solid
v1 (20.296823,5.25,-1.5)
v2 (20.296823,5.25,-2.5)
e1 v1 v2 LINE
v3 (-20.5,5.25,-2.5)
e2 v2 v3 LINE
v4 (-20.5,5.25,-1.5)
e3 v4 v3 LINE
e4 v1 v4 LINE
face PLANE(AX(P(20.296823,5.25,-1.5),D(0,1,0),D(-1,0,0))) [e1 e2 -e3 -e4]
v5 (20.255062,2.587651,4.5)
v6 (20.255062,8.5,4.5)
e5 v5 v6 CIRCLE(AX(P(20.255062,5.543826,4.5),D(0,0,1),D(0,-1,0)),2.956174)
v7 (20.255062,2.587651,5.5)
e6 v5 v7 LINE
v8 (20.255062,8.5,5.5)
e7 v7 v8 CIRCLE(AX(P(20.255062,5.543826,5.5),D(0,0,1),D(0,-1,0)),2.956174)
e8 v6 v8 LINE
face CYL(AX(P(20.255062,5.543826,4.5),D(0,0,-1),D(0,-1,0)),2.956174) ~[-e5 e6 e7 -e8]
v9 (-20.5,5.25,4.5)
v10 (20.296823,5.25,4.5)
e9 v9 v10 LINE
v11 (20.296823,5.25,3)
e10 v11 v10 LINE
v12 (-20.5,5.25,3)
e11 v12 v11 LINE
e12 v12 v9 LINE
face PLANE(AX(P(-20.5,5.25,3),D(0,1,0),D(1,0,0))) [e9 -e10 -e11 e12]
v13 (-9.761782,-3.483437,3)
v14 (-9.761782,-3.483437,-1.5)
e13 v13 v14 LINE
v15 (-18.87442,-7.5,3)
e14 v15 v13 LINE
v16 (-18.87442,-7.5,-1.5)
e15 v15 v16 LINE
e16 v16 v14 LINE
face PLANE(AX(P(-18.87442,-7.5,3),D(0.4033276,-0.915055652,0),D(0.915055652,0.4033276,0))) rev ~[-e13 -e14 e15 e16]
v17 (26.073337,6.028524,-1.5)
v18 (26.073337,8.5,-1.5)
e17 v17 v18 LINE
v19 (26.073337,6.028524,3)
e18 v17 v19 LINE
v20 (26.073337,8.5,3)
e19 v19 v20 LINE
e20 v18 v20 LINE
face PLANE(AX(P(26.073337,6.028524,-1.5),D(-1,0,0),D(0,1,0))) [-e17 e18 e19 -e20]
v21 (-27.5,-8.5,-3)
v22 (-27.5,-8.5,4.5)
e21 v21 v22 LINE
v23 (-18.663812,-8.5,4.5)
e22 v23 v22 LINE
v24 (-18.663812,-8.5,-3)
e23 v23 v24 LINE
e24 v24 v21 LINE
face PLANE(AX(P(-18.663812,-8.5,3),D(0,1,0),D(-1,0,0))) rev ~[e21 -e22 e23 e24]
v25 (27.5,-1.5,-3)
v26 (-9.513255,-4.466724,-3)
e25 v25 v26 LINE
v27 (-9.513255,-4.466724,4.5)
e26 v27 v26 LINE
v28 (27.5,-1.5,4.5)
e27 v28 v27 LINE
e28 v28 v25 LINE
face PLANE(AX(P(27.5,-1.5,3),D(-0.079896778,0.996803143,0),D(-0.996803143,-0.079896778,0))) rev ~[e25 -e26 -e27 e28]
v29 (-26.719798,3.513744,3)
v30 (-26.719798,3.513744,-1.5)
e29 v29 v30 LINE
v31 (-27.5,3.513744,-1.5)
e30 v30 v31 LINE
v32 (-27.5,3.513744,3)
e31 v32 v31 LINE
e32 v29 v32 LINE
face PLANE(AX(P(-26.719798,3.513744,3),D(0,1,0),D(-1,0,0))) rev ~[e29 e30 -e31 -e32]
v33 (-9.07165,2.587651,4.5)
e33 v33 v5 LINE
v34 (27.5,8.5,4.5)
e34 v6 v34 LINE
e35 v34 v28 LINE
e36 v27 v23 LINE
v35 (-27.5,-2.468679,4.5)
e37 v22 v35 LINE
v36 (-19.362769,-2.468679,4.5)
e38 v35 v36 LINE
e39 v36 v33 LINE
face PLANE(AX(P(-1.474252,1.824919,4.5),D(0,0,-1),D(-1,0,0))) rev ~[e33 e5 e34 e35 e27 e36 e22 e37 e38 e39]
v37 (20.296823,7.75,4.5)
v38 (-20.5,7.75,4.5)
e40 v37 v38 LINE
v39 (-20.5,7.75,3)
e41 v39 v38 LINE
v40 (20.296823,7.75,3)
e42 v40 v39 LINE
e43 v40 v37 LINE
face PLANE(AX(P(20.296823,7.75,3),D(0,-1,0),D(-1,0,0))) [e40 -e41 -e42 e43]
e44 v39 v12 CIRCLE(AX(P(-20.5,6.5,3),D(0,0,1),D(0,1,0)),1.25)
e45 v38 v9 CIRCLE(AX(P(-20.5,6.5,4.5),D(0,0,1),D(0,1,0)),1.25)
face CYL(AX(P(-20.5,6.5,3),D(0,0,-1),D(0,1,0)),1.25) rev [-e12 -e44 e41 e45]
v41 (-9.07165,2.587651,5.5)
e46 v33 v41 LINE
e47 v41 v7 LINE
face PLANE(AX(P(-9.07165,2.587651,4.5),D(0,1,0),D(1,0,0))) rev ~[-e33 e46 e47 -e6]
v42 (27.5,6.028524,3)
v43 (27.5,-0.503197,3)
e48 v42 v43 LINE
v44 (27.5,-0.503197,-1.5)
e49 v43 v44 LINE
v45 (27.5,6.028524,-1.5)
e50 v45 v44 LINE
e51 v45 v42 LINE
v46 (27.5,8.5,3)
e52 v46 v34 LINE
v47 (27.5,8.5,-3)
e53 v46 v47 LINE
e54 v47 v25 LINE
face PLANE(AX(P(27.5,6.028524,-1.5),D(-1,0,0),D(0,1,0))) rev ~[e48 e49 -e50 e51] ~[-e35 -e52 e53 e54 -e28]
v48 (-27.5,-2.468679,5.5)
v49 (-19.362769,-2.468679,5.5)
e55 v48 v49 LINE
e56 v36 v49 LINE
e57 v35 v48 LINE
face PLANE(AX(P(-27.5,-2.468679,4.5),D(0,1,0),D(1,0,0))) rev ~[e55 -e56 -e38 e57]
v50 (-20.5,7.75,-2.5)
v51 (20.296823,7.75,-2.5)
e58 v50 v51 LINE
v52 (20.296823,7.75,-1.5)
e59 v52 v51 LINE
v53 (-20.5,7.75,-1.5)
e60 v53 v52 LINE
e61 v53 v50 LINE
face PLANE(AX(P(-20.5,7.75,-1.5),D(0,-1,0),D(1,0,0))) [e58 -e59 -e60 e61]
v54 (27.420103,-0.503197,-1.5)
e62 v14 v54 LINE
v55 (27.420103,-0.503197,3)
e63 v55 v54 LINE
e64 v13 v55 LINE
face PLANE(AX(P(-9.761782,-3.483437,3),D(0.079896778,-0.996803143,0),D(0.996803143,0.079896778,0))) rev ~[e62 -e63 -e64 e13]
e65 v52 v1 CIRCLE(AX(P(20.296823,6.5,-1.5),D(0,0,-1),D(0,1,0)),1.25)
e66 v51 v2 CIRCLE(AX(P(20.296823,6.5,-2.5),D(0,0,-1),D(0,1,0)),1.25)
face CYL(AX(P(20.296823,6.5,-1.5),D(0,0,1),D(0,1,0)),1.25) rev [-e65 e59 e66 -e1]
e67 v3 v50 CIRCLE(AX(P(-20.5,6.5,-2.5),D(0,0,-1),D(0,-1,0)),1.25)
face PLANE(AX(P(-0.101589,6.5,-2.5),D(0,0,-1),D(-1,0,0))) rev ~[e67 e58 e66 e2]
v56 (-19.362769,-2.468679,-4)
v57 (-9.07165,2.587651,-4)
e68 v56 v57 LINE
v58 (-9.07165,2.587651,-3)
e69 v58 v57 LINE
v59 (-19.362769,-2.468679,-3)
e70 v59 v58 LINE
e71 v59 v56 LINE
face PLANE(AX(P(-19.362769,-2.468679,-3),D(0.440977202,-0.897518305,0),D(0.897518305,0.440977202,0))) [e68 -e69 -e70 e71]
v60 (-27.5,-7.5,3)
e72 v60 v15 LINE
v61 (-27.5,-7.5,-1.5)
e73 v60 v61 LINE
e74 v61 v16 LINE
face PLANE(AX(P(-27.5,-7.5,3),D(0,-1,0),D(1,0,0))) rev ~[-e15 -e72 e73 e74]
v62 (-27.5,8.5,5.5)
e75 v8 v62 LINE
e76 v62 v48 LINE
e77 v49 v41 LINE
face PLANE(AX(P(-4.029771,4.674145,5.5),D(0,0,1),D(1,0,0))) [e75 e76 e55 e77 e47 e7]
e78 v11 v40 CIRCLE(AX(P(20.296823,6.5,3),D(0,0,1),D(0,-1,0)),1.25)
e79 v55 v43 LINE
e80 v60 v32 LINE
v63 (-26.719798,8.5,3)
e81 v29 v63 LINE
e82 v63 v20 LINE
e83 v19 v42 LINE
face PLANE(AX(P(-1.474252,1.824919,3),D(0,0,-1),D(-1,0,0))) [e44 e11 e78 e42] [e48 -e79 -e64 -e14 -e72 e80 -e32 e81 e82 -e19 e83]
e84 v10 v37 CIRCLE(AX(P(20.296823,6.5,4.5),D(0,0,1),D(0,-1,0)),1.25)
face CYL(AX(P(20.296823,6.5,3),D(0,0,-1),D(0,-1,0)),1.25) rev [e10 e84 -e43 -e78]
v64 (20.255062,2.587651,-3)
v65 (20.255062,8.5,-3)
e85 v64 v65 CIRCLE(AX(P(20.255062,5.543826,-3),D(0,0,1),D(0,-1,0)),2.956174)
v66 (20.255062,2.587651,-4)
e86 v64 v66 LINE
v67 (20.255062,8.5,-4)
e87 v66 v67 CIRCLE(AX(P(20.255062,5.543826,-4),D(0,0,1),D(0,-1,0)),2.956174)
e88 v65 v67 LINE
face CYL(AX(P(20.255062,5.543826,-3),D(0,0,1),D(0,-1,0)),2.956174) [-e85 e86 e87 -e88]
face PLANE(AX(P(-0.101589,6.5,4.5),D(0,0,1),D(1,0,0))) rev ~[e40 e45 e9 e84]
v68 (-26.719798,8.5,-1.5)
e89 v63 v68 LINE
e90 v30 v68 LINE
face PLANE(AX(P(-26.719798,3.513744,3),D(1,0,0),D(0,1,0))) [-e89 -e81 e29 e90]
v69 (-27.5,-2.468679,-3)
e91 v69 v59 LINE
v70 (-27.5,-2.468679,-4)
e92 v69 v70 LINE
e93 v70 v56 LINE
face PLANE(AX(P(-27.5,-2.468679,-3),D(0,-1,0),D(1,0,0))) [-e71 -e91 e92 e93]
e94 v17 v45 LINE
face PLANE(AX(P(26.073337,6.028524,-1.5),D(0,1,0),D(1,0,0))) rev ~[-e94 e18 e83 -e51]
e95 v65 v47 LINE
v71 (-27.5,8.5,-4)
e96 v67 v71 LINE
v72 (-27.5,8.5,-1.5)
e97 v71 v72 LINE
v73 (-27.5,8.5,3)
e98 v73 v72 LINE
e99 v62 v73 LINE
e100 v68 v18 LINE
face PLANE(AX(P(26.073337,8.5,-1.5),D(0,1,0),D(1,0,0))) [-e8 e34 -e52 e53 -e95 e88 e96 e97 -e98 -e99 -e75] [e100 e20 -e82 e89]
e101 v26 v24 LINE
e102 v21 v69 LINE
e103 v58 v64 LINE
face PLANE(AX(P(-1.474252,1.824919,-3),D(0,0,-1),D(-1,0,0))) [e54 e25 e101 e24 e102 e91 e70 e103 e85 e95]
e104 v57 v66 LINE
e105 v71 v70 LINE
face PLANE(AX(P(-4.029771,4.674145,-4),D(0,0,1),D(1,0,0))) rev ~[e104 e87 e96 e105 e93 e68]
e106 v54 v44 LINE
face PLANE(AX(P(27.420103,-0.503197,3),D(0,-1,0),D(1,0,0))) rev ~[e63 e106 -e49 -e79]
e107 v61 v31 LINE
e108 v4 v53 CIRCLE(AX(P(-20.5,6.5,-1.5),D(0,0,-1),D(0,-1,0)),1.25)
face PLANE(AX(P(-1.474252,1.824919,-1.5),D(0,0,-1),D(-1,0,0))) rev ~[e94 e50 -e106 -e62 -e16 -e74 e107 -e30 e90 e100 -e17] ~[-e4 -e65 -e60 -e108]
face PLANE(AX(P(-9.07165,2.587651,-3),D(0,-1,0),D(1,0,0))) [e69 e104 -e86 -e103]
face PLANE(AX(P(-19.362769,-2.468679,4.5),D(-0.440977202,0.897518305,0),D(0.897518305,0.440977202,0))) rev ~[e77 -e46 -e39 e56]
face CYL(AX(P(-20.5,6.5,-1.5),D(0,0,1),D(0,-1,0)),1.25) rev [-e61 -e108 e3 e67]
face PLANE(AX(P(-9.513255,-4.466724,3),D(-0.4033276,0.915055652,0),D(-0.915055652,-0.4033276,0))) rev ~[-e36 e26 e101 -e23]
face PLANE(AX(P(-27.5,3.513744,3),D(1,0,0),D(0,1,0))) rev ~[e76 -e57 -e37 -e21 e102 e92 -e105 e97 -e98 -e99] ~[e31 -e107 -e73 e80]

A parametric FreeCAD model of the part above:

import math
import FreeCAD as App
import Part
import Sketcher


def add_polygon(sketch, points):
    """Adds a closed chain of lines whose ends are joined by coincident constraints."""
    first, n = sketch.GeometryCount, len(points)
    for a, b in zip(points, points[1:] + points[:1]):
        sketch.addGeometry(Part.LineSegment(App.Vector(*a, 0), App.Vector(*b, 0)), False)
    for i in range(n):
        sketch.addConstraint(Sketcher.Constraint("Coincident", first + i, 2, first + (i + 1) % n, 1))

doc = App.newDocument("Part")
params = doc.addObject("Spreadsheet::Sheet", "Params")
for row, (alias, value) in enumerate([
    ("sketch1_width", "55 mm"),
    ("sketch1_height", "10 mm"),
    ("sketch1_height2", "17 mm"),
    ("sketch1_length", "10 mm"),
    ("pad1_length", "1.5 mm"),
    ("pad2_length", "1 mm"),
    ("sketch3_radius", "1.25 mm"),
    ("pocket1_length", "1.5 mm"),
    ("sketch4_width", "55 mm"),
    ("sketch4_height", "10 mm"),
    ("sketch4_height2", "17 mm"),
    ("sketch4_length", "10 mm"),
    ("pad3_length", "1.5 mm"),
    ("pad4_length", "1 mm"),
    ("sketch6_height", "1 mm"),
    ("sketch6_length", "10 mm"),
    ("pad5_length", "4.5 mm"),
    ("sketch7_radius", "1.25 mm"),
    ("pocket2_length", "1 mm"),
    ("pad6_length", "4.5 mm"),
    ("pad7_length", "4.5 mm"),
], start=1):
    params.set(f"A{row}", alias)
    params.set(f"B{row}", "=" + value)
    params.setAlias(f"B{row}", alias)

body = doc.addObject("PartDesign::Body", "Body")

# Sketch on XY plane
sketch1 = doc.addObject("Sketcher::SketchObject", "Sketch")
body.addObject(sketch1)
sketch1.AttachmentSupport = (doc.XY_Plane, [""])
sketch1.MapMode = "FlatFace"
sketch1.AttachmentOffset = App.Placement(App.Vector(0, 0, 3), App.Rotation())
add_polygon(sketch1, [(-19, -8), (-10, -4), (28, -2), (28, 8), (-28, 8), (-28, -8)])  # lines 0-5
sketch1.addConstraint([
    Sketcher.Constraint("Vertical", 2),
    Sketcher.Constraint("Horizontal", 3),
    Sketcher.Constraint("Vertical", 4),
    Sketcher.Constraint("Horizontal", 5),
    Sketcher.Constraint("Symmetric", 2, 2, 4, 2, -1, 1),
    Sketcher.Constraint("DistanceX", 3, 2, 3, 1, 55.0),
    Sketcher.Constraint("DistanceY", 2, 1, 2, 2, 10.0),
    Sketcher.Constraint("DistanceY", 4, 2, 4, 1, 17.0),
    Sketcher.Constraint("Distance", 0, 10.0),
    Sketcher.Constraint("DistanceX", 5, 1, 5, 2, 8.836188),
    Sketcher.Constraint("Distance", 1, 37.131961),
])
sketch1.setExpression("Constraints[11]", "Params.sketch1_width")
sketch1.setExpression("Constraints[12]", "Params.sketch1_height")
sketch1.setExpression("Constraints[13]", "Params.sketch1_height2")
sketch1.setExpression("Constraints[14]", "Params.sketch1_length")
pad1 = doc.addObject("PartDesign::Pad", "Pad")
body.addObject(pad1)
pad1.Profile = sketch1
pad1.setExpression("Length", "Params.pad1_length")

# Sketch on XY plane
sketch2 = doc.addObject("Sketcher::SketchObject", "Sketch001")
body.addObject(sketch2)
sketch2.AttachmentSupport = (doc.XY_Plane, [""])
sketch2.MapMode = "FlatFace"
sketch2.AttachmentOffset = App.Placement(App.Vector(0, 0, 4.5), App.Rotation())
sketch2.addGeometry([
    Part.LineSegment(App.Vector(-27.5, -2.5, 0), App.Vector(-19.4, -2.5, 0)),  # 0
    Part.LineSegment(App.Vector(-19.4, -2.5, 0), App.Vector(-9.1, 2.6, 0)),  # 1
    Part.LineSegment(App.Vector(-9.1, 2.6, 0), App.Vector(20.3, 2.6, 0)),  # 2
    Part.ArcOfCircle(Part.Circle(App.Vector(20.3, 5.5, 0), App.Vector(0, 0, 1), 3), math.radians(-90), math.radians(90)),  # 3
    Part.LineSegment(App.Vector(20.3, 8.5, 0), App.Vector(-27.5, 8.5, 0)),  # 4
    Part.LineSegment(App.Vector(-27.5, 8.5, 0), App.Vector(-27.5, -2.5, 0)),  # 5
], False)
sketch2.addConstraint([
    Sketcher.Constraint("Coincident", 0, 2, 1, 1),
    Sketcher.Constraint("Coincident", 1, 2, 2, 1),
    Sketcher.Constraint("Tangent", 2, 2, 3, 1),
    Sketcher.Constraint("Tangent", 3, 2, 4, 1),
    Sketcher.Constraint("Coincident", 4, 2, 5, 1),
    Sketcher.Constraint("Coincident", 5, 2, 0, 1),
    Sketcher.Constraint("Horizontal", 0),
    Sketcher.Constraint("Horizontal", 2),
    Sketcher.Constraint("Horizontal", 4),
    Sketcher.Constraint("Vertical", 5),
    Sketcher.Constraint("DistanceY", -1, 1, 3, 2, 8.5),
    Sketcher.Constraint("DistanceX", 4, 2, -1, 1, 27.5),
    Sketcher.Constraint("Radius", 3, 2.956174),
    Sketcher.Constraint("DistanceX", 0, 1, 0, 2, 8.137231),
    Sketcher.Constraint("DistanceY", 5, 2, 5, 1, 10.968679),
    Sketcher.Constraint("DistanceX", 2, 1, 2, 2, 29.326713),
    Sketcher.Constraint("DistanceX", 4, 2, 4, 1, 47.755062),
])
pad2 = doc.addObject("PartDesign::Pad", "Pad001")
body.addObject(pad2)
pad2.Profile = sketch2
pad2.setExpression("Length", "Params.pad2_length")

# Sketch on XY plane
sketch3 = doc.addObject("Sketcher::SketchObject", "Sketch002")
body.addObject(sketch3)
sketch3.AttachmentSupport = (doc.XY_Plane, [""])
sketch3.MapMode = "FlatFace"
sketch3.AttachmentOffset = App.Placement(App.Vector(0, 0, 3), App.Rotation())
sketch3.addGeometry([
    Part.LineSegment(App.Vector(-20.5, 7.8, 0), App.Vector(20.3, 7.8, 0)),
    Part.ArcOfCircle(Part.Circle(App.Vector(20.3, 6.5, 0), App.Vector(0, 0, 1), 1.2), math.radians(-90), math.radians(90)),
    Part.LineSegment(App.Vector(20.3, 5.2, 0), App.Vector(-20.5, 5.2, 0)),
    Part.ArcOfCircle(Part.Circle(App.Vector(-20.5, 6.5, 0), App.Vector(0, 0, 1), 1.2), math.radians(90), math.radians(270)),
], False)
sketch3.addConstraint([
    Sketcher.Constraint("Tangent", 0, 2, 1, 2),
    Sketcher.Constraint("Tangent", 1, 1, 2, 1),
    Sketcher.Constraint("Tangent", 2, 2, 3, 2),
    Sketcher.Constraint("Tangent", 3, 1, 0, 1),
    Sketcher.Constraint("Horizontal", 0),
    Sketcher.Constraint("Horizontal", 2),
    Sketcher.Constraint("Radius", 1, 1.25),
    Sketcher.Constraint("DistanceY", -1, 1, 1, 3, 6.5),
    Sketcher.Constraint("DistanceX", 3, 3, -1, 1, 20.5),
    Sketcher.Constraint("DistanceX", 0, 1, 0, 2, 40.796823),
])
sketch3.setExpression("Constraints[6]", "Params.sketch3_radius")
pocket1 = doc.addObject("PartDesign::Pocket", "Pocket")
body.addObject(pocket1)
pocket1.Profile = sketch3
pocket1.setExpression("Length", "Params.pocket1_length")
pocket1.Reversed = True
body2 = doc.addObject("PartDesign::Body", "Body001")

# Sketch on XY plane
sketch4 = doc.addObject("Sketcher::SketchObject", "Sketch003")
body2.addObject(sketch4)
sketch4.AttachmentSupport = (doc.getObject("XY_Plane001"), [""])
sketch4.MapMode = "FlatFace"
sketch4.AttachmentOffset = App.Placement(App.Vector(0, 0, -3), App.Rotation())
add_polygon(sketch4, [(-10, -4), (28, -2), (28, 8), (-28, 8), (-28, -8), (-19, -8)])  # lines 0-5
sketch4.addConstraint([
    Sketcher.Constraint("Vertical", 1),
    Sketcher.Constraint("Horizontal", 2),
    Sketcher.Constraint("Vertical", 3),
    Sketcher.Constraint("Horizontal", 4),
    Sketcher.Constraint("Symmetric", 1, 2, 3, 2, -1, 1),
    Sketcher.Constraint("DistanceX", 2, 2, 2, 1, 55.0),
    Sketcher.Constraint("DistanceY", 1, 1, 1, 2, 10.0),
    Sketcher.Constraint("DistanceY", 3, 2, 3, 1, 17.0),
    Sketcher.Constraint("Distance", 5, 10.0),
    Sketcher.Constraint("DistanceX", 4, 1, 4, 2, 8.836188),
    Sketcher.Constraint("Distance", 0, 37.131961),
])
sketch4.setExpression("Constraints[11]", "Params.sketch4_width")
sketch4.setExpression("Constraints[12]", "Params.sketch4_height")
sketch4.setExpression("Constraints[13]", "Params.sketch4_height2")
sketch4.setExpression("Constraints[14]", "Params.sketch4_length")
pad3 = doc.addObject("PartDesign::Pad", "Pad002")
body2.addObject(pad3)
pad3.Profile = sketch4
pad3.setExpression("Length", "Params.pad3_length")

# Sketch on XY plane
sketch5 = doc.addObject("Sketcher::SketchObject", "Sketch004")
body2.addObject(sketch5)
sketch5.AttachmentSupport = (doc.getObject("XY_Plane001"), [""])
sketch5.MapMode = "FlatFace"
sketch5.AttachmentOffset = App.Placement(App.Vector(0, 0, -3), App.Rotation())
sketch5.addGeometry([
    Part.LineSegment(App.Vector(-27.5, 8.5, 0), App.Vector(20.3, 8.5, 0)),  # 0
    Part.ArcOfCircle(Part.Circle(App.Vector(20.3, 5.5, 0), App.Vector(0, 0, 1), 3), math.radians(-90), math.radians(90)),  # 1
    Part.LineSegment(App.Vector(20.3, 2.6, 0), App.Vector(-9.1, 2.6, 0)),  # 2
    Part.LineSegment(App.Vector(-9.1, 2.6, 0), App.Vector(-19.4, -2.5, 0)),  # 3
    Part.LineSegment(App.Vector(-19.4, -2.5, 0), App.Vector(-27.5, -2.5, 0)),  # 4
    Part.LineSegment(App.Vector(-27.5, -2.5, 0), App.Vector(-27.5, 8.5, 0)),  # 5
], False)
sketch5.addConstraint([
    Sketcher.Constraint("Tangent", 0, 2, 1, 2),
    Sketcher.Constraint("Tangent", 1, 1, 2, 1),
    Sketcher.Constraint("Coincident", 2, 2, 3, 1),
    Sketcher.Constraint("Coincident", 3, 2, 4, 1),
    Sketcher.Constraint("Coincident", 4, 2, 5, 1),
    Sketcher.Constraint("Coincident", 5, 2, 0, 1),
    Sketcher.Constraint("Horizontal", 0),
    Sketcher.Constraint("Horizontal", 2),
    Sketcher.Constraint("Horizontal", 4),
    Sketcher.Constraint("Vertical", 5),
    Sketcher.Constraint("DistanceY", -1, 1, 0, 2, 8.5),
    Sketcher.Constraint("DistanceX", 4, 2, -1, 1, 27.5),
    Sketcher.Constraint("Radius", 1, 2.956174),
    Sketcher.Constraint("DistanceX", 4, 2, 4, 1, 8.137231),
    Sketcher.Constraint("DistanceY", 5, 1, 5, 2, 10.968679),
    Sketcher.Constraint("DistanceX", 0, 1, 0, 2, 47.755062),
    Sketcher.Constraint("DistanceX", 2, 2, 2, 1, 29.326713),
])
pad4 = doc.addObject("PartDesign::Pad", "Pad003")
body2.addObject(pad4)
pad4.Profile = sketch5
pad4.setExpression("Length", "Params.pad4_length")
pad4.Reversed = True
body.AllowCompound = True
doc.recompute()

boolean = doc.addObject("PartDesign::Boolean", "Boolean")
body.addObject(boolean)
boolean.Type = "Fuse"
boolean.addObjects([body2])

# Sketch on XY plane
sketch6 = doc.addObject("Sketcher::SketchObject", "Sketch005")
body.addObject(sketch6)
sketch6.AttachmentSupport = (doc.XY_Plane, [""])
sketch6.MapMode = "FlatFace"
sketch6.AttachmentOffset = App.Placement(App.Vector(0, 0, 3), App.Rotation())
add_polygon(sketch6, [(27.5, -0.5), (27.5, -1.5), (-9.51, -4.47), (-18.66, -8.5), (-27.5, -8.5), (-27.5, -7.5), (-18.87, -7.5), (-9.76, -3.48), (27.42, -0.5)])  # lines 0-8
sketch6.addConstraint([
    Sketcher.Constraint("Vertical", 0),
    Sketcher.Constraint("Horizontal", 3),
    Sketcher.Constraint("Vertical", 4),
    Sketcher.Constraint("Horizontal", 5),
    Sketcher.Constraint("Horizontal", 8),
    Sketcher.Constraint("Parallel", 2, 6),
    Sketcher.Constraint("Parallel", 1, 7),
    Sketcher.Constraint("DistanceY", 4, 1, 4, 2, 1.0),
    Sketcher.Constraint("Distance", 2, 10.0),
    Sketcher.Constraint("DistanceY", 2, 2, 0, 2, 7.0),
    Sketcher.Constraint("DistanceX", 3, 2, 0, 2, 55.0),
    Sketcher.Constraint("DistanceX", -1, 1, 0, 2, 27.5),
    Sketcher.Constraint("DistanceY", 0, 2, -1, 1, 1.5),
    Sketcher.Constraint("DistanceX", 3, 2, 3, 1, 8.836188),
    Sketcher.Constraint("DistanceX", 5, 1, 5, 2, 8.62558),
    Sketcher.Constraint("Distance", 1, 37.131961),
    Sketcher.Constraint("Distance", 7, 37.301131),
    Sketcher.Constraint("DistanceX", 8, 1, 8, 2, 0.079897),
])
sketch6.setExpression("Constraints[16]", "Params.sketch6_height")
sketch6.setExpression("Constraints[17]", "Params.sketch6_length")
pad5 = doc.addObject("PartDesign::Pad", "Pad004")
body.addObject(pad5)
pad5.Profile = sketch6
pad5.setExpression("Length", "Params.pad5_length")
pad5.Reversed = True

# Sketch on XY plane
sketch7 = doc.addObject("Sketcher::SketchObject", "Sketch006")
body.addObject(sketch7)
sketch7.AttachmentSupport = (doc.XY_Plane, [""])
sketch7.MapMode = "FlatFace"
sketch7.AttachmentOffset = App.Placement(App.Vector(0, 0, -1.5), App.Rotation())
sketch7.addGeometry([
    Part.LineSegment(App.Vector(20.3, 7.8, 0), App.Vector(-20.5, 7.8, 0)),
    Part.ArcOfCircle(Part.Circle(App.Vector(-20.5, 6.5, 0), App.Vector(0, 0, 1), 1.2), math.radians(90), math.radians(270)),
    Part.LineSegment(App.Vector(-20.5, 5.2, 0), App.Vector(20.3, 5.2, 0)),
    Part.ArcOfCircle(Part.Circle(App.Vector(20.3, 6.5, 0), App.Vector(0, 0, 1), 1.2), math.radians(-90), math.radians(90)),
], False)
sketch7.addConstraint([
    Sketcher.Constraint("Tangent", 0, 2, 1, 1),
    Sketcher.Constraint("Tangent", 1, 2, 2, 1),
    Sketcher.Constraint("Tangent", 2, 2, 3, 1),
    Sketcher.Constraint("Tangent", 3, 2, 0, 1),
    Sketcher.Constraint("Horizontal", 0),
    Sketcher.Constraint("Horizontal", 2),
    Sketcher.Constraint("Radius", 1, 1.25),
    Sketcher.Constraint("DistanceX", 1, 3, -1, 1, 20.5),
    Sketcher.Constraint("DistanceY", -1, 1, 1, 3, 6.5),
    Sketcher.Constraint("DistanceX", 0, 2, 0, 1, 40.796823),
])
sketch7.setExpression("Constraints[6]", "Params.sketch7_radius")
pocket2 = doc.addObject("PartDesign::Pocket", "Pocket001")
body.addObject(pocket2)
pocket2.Profile = sketch7
pocket2.setExpression("Length", "Params.pocket2_length")

# Sketch on XY plane
sketch8 = doc.addObject("Sketcher::SketchObject", "Sketch007")
body.addObject(sketch8)
sketch8.AttachmentSupport = (doc.XY_Plane, [""])
sketch8.MapMode = "FlatFace"
sketch8.AttachmentOffset = App.Placement(App.Vector(0, 0, 3), App.Rotation())
add_polygon(sketch8, [(-26.7, 8.5), (-26.7, 3.5), (-27.5, 3.5), (-27.5, 8.5)])  # lines 0-3
sketch8.addConstraint([
    Sketcher.Constraint("Vertical", 0),
    Sketcher.Constraint("Horizontal", 1),
    Sketcher.Constraint("Vertical", 2),
    Sketcher.Constraint("Horizontal", 3),
    Sketcher.Constraint("DistanceX", 1, 2, -1, 1, 27.5),
    Sketcher.Constraint("DistanceY", -1, 1, 2, 2, 8.5),
    Sketcher.Constraint("DistanceX", 1, 2, 1, 1, 0.780202),
    Sketcher.Constraint("DistanceY", 0, 2, 0, 1, 4.986256),
])
pad6 = doc.addObject("PartDesign::Pad", "Pad005")
body.addObject(pad6)
pad6.Profile = sketch8
pad6.setExpression("Length", "Params.pad6_length")
pad6.Reversed = True

# Sketch on XY plane
sketch9 = doc.addObject("Sketcher::SketchObject", "Sketch008")
body.addObject(sketch9)
sketch9.AttachmentSupport = (doc.XY_Plane, [""])
sketch9.MapMode = "FlatFace"
sketch9.AttachmentOffset = App.Placement(App.Vector(0, 0, -1.5), App.Rotation())
add_polygon(sketch9, [(26.1, 8.5), (26.1, 6), (27.5, 6), (27.5, 8.5)])  # lines 0-3
sketch9.addConstraint([
    Sketcher.Constraint("Vertical", 0),
    Sketcher.Constraint("Horizontal", 1),
    Sketcher.Constraint("Vertical", 2),
    Sketcher.Constraint("Horizontal", 3),
    Sketcher.Constraint("DistanceX", -1, 1, 1, 2, 27.5),
    Sketcher.Constraint("DistanceY", -1, 1, 2, 2, 8.5),
    Sketcher.Constraint("DistanceX", 1, 1, 1, 2, 1.426663),
    Sketcher.Constraint("DistanceY", 0, 2, 0, 1, 2.471476),
])
pad7 = doc.addObject("PartDesign::Pad", "Pad006")
body.addObject(pad7)
pad7.Profile = sketch9
pad7.setExpression("Length", "Params.pad7_length")

doc.recompute()
